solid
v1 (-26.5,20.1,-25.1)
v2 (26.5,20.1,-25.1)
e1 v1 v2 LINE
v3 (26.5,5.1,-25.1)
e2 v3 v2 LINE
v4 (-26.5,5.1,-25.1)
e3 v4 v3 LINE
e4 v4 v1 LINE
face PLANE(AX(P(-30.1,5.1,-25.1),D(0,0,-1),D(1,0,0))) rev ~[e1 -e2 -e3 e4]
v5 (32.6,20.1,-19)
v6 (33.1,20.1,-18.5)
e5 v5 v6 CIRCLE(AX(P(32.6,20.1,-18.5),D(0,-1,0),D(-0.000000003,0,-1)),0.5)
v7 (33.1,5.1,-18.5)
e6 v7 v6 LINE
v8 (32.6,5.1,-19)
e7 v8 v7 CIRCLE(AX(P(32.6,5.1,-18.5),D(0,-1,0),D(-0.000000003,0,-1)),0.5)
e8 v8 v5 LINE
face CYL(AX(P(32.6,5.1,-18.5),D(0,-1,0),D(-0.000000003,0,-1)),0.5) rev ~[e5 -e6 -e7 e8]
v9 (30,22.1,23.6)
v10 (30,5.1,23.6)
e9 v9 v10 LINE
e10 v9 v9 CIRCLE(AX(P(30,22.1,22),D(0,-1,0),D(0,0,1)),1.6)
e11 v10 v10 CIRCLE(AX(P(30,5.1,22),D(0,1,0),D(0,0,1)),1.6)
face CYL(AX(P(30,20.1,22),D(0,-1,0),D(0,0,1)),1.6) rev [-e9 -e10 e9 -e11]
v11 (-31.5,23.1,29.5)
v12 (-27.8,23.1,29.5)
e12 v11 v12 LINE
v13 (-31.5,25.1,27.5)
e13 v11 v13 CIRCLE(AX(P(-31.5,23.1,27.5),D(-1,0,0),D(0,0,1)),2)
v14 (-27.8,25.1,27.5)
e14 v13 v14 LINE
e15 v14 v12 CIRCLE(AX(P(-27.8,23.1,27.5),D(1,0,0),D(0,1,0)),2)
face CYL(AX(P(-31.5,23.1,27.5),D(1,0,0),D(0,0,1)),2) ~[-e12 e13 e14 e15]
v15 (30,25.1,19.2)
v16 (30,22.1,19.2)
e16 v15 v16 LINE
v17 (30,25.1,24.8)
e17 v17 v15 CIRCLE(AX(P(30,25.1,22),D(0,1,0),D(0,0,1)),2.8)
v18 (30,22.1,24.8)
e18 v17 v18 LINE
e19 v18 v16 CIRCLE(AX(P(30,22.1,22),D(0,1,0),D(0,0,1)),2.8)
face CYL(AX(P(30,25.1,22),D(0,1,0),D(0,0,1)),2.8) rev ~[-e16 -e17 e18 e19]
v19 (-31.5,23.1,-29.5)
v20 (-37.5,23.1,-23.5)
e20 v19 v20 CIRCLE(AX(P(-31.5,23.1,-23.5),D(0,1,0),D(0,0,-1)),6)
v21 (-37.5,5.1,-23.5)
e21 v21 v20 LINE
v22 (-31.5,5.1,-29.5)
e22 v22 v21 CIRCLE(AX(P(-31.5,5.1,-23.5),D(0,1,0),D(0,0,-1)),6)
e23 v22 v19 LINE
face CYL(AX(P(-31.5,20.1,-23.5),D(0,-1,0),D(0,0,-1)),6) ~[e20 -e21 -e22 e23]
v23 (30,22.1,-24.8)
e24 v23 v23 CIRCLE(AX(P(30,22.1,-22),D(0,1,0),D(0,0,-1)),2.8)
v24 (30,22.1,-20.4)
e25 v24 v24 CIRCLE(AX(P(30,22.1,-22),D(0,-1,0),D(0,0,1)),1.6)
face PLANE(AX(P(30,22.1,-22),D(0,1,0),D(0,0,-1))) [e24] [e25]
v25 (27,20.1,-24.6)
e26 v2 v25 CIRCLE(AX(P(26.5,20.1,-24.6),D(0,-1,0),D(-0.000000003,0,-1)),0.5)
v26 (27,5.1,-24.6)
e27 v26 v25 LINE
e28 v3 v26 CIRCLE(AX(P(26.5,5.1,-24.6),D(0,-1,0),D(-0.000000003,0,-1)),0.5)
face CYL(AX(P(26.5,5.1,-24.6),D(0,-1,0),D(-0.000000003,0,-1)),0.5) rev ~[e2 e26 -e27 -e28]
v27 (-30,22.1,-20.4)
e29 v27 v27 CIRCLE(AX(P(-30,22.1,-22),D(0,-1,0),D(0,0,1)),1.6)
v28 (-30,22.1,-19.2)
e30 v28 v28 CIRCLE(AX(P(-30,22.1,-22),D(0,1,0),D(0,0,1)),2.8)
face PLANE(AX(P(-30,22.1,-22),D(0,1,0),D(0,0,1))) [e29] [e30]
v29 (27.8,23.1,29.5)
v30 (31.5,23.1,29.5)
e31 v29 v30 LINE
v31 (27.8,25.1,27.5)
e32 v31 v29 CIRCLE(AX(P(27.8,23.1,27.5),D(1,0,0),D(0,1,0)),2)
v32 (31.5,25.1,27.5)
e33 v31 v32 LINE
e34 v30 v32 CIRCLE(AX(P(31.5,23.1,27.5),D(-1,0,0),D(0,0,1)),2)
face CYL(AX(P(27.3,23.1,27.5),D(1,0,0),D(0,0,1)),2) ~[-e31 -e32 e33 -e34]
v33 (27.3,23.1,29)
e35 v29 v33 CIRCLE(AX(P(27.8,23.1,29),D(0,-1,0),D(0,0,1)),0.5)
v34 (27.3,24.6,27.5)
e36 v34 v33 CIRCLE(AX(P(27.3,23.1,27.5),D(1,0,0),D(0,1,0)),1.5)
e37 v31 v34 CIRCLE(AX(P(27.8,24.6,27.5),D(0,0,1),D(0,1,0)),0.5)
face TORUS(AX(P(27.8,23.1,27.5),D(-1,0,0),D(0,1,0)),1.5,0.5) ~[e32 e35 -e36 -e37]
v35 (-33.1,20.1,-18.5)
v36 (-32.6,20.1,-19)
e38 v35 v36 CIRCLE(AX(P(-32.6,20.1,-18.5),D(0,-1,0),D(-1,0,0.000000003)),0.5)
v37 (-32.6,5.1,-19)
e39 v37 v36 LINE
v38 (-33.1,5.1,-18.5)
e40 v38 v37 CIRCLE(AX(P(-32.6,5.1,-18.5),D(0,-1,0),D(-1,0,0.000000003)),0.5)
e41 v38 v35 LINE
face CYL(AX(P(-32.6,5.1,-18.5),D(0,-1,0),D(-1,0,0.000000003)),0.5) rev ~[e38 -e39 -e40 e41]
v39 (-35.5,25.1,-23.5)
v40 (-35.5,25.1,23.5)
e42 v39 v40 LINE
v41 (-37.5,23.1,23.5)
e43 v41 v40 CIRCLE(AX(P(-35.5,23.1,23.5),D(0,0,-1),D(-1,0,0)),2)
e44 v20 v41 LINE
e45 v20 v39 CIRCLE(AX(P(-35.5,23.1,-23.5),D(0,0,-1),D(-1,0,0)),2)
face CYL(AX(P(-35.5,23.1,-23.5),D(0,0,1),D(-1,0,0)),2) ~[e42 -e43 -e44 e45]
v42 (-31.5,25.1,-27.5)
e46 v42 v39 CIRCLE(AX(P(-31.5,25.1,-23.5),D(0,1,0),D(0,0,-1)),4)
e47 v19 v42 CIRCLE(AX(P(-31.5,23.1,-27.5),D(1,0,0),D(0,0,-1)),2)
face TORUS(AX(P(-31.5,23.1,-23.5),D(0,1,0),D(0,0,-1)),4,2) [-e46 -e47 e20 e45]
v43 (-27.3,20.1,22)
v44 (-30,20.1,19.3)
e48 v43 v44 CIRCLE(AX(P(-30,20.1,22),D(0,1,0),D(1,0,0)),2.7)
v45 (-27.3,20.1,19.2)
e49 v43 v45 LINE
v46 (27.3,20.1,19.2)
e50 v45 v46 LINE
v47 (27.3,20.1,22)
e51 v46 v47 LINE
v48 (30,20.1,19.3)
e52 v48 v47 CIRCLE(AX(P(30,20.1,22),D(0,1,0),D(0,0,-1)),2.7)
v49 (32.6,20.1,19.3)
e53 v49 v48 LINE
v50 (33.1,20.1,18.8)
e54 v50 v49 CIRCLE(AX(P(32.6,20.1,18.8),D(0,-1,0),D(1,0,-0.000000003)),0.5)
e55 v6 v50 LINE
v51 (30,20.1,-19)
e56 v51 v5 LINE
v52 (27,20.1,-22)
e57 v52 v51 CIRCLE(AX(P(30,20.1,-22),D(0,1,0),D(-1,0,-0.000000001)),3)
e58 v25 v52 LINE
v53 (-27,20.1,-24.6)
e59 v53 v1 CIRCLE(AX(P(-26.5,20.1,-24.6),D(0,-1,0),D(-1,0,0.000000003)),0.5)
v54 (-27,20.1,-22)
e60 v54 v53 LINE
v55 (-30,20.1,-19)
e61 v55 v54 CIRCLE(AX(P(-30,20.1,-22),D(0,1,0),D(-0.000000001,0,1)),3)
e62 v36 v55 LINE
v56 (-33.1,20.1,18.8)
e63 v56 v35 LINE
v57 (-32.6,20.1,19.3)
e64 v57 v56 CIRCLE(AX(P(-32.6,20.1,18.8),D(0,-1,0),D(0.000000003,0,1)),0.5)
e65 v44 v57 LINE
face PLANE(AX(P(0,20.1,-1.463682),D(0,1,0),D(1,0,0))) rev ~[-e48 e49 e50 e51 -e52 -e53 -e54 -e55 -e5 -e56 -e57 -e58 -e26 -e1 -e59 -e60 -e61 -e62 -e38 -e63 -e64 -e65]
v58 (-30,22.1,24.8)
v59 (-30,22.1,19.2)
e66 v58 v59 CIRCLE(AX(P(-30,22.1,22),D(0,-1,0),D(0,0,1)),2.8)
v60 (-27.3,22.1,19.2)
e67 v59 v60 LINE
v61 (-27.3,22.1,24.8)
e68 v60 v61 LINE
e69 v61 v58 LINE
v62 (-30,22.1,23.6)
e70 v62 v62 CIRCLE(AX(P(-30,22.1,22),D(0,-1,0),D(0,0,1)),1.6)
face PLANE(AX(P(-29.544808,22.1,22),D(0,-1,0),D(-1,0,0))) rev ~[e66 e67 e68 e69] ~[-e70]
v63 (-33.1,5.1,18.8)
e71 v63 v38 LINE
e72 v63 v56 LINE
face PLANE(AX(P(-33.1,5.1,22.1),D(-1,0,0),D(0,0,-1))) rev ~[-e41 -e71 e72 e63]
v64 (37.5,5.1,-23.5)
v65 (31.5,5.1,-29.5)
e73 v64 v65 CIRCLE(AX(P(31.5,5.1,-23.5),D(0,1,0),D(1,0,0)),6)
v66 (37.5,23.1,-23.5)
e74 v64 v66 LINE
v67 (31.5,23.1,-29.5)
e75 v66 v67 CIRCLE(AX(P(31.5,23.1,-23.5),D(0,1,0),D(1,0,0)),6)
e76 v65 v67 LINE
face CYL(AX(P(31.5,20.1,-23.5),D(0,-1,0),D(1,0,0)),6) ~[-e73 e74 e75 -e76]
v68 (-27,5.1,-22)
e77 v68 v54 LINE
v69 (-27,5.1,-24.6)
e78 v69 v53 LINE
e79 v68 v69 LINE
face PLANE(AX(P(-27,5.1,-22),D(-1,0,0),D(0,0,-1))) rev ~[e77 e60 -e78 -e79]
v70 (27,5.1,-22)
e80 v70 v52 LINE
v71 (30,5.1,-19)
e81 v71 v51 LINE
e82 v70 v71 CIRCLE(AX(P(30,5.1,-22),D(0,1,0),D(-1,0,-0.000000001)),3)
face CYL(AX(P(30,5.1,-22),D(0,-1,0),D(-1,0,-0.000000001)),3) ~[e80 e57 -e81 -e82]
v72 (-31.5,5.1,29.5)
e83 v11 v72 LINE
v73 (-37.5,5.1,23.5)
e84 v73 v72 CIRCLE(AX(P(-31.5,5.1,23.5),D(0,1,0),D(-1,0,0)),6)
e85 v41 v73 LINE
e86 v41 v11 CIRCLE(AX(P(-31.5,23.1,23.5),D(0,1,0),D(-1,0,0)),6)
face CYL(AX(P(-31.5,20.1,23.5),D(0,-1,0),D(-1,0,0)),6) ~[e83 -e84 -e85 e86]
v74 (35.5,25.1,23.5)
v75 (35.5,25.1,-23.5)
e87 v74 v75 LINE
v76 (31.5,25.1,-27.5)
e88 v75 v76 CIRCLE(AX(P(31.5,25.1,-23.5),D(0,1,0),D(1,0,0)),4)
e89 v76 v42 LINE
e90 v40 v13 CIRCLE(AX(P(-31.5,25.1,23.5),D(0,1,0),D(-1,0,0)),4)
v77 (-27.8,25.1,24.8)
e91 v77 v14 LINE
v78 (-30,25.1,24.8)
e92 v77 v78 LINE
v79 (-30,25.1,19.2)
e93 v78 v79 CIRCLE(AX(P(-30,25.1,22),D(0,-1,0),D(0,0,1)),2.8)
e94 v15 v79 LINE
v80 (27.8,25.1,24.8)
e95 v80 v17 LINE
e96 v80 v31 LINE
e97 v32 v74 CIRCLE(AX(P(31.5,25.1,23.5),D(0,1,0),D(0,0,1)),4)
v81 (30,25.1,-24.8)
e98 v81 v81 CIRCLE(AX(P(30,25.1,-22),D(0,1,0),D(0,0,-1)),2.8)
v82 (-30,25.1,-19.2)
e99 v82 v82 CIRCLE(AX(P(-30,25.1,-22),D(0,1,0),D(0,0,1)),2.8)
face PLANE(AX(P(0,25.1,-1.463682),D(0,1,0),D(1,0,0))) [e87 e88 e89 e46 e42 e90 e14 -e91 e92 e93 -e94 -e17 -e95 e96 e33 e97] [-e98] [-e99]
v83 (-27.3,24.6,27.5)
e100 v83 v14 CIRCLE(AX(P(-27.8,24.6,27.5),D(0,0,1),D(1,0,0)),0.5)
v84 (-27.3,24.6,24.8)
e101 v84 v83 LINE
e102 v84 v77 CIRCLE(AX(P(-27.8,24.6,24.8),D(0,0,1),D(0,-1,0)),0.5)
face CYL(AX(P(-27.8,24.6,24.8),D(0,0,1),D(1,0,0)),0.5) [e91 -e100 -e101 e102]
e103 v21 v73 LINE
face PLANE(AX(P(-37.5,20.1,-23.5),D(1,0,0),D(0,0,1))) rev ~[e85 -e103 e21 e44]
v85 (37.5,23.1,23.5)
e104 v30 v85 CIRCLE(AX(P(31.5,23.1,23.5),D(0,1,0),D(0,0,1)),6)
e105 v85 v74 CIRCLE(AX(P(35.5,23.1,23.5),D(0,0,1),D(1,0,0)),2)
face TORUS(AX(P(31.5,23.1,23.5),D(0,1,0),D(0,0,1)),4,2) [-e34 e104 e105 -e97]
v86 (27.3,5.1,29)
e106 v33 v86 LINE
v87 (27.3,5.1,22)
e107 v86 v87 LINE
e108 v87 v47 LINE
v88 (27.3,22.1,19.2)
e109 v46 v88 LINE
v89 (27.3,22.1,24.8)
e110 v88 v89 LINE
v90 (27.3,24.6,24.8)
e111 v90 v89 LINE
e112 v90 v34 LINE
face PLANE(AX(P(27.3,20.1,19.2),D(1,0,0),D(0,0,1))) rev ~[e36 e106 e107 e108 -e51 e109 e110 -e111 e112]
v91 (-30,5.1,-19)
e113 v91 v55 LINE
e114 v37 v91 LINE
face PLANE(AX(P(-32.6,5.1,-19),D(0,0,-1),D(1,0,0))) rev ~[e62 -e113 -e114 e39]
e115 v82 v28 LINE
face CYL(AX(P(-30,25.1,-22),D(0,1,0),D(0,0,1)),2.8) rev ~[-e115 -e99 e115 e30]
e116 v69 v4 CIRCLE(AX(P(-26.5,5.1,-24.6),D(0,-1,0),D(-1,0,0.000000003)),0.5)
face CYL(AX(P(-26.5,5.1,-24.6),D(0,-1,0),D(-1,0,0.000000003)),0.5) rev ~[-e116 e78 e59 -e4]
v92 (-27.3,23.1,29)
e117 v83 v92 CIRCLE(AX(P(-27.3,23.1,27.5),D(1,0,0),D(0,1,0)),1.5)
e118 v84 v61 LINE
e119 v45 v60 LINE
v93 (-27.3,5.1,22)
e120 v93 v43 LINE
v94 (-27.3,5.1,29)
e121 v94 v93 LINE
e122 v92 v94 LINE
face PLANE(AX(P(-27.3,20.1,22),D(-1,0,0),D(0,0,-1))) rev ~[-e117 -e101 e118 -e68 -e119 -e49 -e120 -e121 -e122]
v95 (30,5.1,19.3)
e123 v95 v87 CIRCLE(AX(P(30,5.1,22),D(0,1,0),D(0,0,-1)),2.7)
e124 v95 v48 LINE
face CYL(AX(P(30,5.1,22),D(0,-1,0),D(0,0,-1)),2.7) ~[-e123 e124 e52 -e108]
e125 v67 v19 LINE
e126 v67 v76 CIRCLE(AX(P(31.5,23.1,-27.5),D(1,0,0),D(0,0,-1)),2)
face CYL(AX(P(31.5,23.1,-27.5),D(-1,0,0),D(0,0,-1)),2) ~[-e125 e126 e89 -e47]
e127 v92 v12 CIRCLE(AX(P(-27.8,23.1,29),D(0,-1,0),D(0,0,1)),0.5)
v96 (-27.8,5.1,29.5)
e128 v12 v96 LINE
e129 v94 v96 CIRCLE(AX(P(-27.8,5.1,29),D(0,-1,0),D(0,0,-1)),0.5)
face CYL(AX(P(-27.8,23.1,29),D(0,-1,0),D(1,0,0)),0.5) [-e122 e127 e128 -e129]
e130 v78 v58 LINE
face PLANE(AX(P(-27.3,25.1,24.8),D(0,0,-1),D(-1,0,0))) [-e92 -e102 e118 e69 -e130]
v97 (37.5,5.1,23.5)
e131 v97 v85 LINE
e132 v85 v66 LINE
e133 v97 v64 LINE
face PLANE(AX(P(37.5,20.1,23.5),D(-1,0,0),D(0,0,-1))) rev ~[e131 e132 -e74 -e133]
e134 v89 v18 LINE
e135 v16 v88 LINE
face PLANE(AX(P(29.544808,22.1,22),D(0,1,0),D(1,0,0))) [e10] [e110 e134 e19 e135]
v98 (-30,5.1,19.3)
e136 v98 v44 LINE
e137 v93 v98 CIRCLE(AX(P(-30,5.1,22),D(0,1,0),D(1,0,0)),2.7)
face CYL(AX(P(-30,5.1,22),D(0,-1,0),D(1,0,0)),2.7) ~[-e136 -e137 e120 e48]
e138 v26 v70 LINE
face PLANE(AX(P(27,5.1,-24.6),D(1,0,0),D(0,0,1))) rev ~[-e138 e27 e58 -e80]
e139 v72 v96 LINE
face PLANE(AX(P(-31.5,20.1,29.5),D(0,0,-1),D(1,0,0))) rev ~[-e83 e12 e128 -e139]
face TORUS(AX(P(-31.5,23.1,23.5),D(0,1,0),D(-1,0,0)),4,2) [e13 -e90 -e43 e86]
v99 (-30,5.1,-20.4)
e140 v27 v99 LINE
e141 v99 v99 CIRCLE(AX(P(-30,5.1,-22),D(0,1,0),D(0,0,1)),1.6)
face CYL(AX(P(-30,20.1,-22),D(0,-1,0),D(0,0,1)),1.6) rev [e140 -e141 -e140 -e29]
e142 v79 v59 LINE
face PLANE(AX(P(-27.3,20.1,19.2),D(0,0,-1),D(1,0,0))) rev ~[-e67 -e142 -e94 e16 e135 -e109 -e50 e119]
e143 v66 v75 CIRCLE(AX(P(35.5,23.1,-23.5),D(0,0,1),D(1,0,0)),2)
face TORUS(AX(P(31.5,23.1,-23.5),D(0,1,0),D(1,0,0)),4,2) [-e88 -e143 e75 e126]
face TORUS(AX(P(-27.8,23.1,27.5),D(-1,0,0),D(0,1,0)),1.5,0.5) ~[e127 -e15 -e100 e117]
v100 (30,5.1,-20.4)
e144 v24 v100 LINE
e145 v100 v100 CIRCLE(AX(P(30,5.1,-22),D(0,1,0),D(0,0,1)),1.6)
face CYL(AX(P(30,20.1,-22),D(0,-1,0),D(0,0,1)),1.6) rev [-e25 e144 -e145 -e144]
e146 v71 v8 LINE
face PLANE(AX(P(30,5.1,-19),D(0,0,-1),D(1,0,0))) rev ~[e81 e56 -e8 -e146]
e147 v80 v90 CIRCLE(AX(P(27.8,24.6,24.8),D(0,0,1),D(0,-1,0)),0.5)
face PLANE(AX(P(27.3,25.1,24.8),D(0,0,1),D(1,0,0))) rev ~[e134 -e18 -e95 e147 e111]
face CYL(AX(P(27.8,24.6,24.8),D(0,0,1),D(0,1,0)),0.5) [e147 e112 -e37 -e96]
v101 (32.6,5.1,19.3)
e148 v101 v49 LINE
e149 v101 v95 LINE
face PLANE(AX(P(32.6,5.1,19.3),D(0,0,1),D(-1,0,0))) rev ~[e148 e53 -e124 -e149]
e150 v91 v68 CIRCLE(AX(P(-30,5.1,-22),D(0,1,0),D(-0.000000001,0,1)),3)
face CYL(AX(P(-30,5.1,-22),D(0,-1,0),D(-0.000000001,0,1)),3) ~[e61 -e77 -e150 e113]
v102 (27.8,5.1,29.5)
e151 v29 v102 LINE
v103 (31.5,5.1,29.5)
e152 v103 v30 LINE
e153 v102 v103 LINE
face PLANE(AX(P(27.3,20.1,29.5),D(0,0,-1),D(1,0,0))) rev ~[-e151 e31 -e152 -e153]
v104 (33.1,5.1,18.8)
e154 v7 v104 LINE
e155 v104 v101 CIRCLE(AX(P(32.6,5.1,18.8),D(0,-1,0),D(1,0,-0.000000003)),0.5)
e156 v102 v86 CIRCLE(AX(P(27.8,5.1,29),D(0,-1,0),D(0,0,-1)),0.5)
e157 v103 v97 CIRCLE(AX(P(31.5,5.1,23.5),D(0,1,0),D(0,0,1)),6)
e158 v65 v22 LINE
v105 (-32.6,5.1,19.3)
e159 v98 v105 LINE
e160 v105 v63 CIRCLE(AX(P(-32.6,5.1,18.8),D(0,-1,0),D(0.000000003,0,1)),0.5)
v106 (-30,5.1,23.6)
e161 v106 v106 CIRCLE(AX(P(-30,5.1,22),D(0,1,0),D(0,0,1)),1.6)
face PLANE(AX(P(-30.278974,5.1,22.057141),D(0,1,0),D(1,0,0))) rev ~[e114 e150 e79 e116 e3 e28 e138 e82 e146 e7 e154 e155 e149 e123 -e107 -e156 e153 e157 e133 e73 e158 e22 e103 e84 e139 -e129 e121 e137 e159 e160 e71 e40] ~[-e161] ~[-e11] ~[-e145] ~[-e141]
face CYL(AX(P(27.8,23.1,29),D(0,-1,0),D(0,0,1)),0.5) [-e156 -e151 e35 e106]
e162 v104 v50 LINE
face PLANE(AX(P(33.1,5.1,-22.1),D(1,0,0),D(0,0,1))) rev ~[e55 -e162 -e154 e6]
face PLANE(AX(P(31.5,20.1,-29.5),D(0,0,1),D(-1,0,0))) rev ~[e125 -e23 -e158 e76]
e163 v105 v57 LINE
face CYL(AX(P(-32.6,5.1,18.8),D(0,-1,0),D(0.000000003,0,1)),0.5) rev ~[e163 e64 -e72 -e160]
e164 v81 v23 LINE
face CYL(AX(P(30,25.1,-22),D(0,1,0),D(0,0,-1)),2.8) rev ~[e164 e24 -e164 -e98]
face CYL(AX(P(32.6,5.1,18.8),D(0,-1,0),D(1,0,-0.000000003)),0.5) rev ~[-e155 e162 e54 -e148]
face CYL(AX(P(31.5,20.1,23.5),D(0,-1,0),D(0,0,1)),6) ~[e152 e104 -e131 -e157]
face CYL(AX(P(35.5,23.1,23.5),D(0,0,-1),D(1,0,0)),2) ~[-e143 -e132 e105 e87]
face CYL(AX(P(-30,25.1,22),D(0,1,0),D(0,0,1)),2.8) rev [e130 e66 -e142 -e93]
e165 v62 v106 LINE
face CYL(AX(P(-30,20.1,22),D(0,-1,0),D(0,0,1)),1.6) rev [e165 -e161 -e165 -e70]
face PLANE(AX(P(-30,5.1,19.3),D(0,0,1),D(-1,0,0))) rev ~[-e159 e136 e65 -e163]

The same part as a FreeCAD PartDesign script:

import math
import FreeCAD as App
import Part
import Sketcher
from FreeCAD import Vector


def edges_at(feature, points):
    """Names of the edges that pass closest to the given points."""
    edges = feature.Shape.Edges
    near = lambda p: min(range(len(edges)), key=lambda i: edges[i].distToShape(Part.Vertex(*p))[0])
    return sorted({f"Edge{near(p) + 1}" for p in points})

doc = App.newDocument("Part")
body = doc.addObject("PartDesign::Body", "Body")

# Sketch on XZ plane
sketch1 = body.newObject("Sketcher::SketchObject", "Sketch")
sketch1.AttachmentSupport = (doc.getObject("XZ_Plane"), [""])
sketch1.MapMode = "FlatFace"
sketch1.AttachmentOffset = App.Placement(Vector(0, 0, -5.1), App.Rotation())
sketch1.addGeometry(Part.LineSegment(Vector(-27.3, 29.5, 0), Vector(-27.3, 22, 0)), False)
sketch1.addGeometry(Part.ArcOfCircle(Part.Circle(Vector(-30, 22, 0), Vector(0, 0, 1), 2.7), math.radians(-90), math.radians(0)), False)
sketch1.addGeometry(Part.LineSegment(Vector(-30, 19.3, 0), Vector(-32.6, 19.3, 0)), False)
sketch1.addGeometry(Part.ArcOfCircle(Part.Circle(Vector(-32.6, 18.8, 0), Vector(0, 0, 1), 0.5), math.radians(90), math.radians(180)), False)
sketch1.addGeometry(Part.LineSegment(Vector(-33.1, 18.8, 0), Vector(-33.1, -18.5, 0)), False)
sketch1.addGeometry(Part.ArcOfCircle(Part.Circle(Vector(-32.6, -18.5, 0), Vector(0, 0, 1), 0.5), math.radians(180), math.radians(270)), False)
sketch1.addGeometry(Part.LineSegment(Vector(-32.6, -19, 0), Vector(-30, -19, 0)), False)
sketch1.addGeometry(Part.ArcOfCircle(Part.Circle(Vector(-30, -22, 0), Vector(0, 0, 1), 3), math.radians(0), math.radians(90)), False)
sketch1.addGeometry(Part.LineSegment(Vector(-27, -22, 0), Vector(-27, -24.6, 0)), False)
sketch1.addGeometry(Part.ArcOfCircle(Part.Circle(Vector(-26.5, -24.6, 0), Vector(0, 0, 1), 0.5), math.radians(180), math.radians(270)), False)
sketch1.addGeometry(Part.LineSegment(Vector(-26.5, -25.1, 0), Vector(26.5, -25.1, 0)), False)
sketch1.addGeometry(Part.ArcOfCircle(Part.Circle(Vector(26.5, -24.6, 0), Vector(0, 0, 1), 0.5), math.radians(-90), math.radians(0)), False)
sketch1.addGeometry(Part.LineSegment(Vector(27, -24.6, 0), Vector(27, -22, 0)), False)
sketch1.addGeometry(Part.ArcOfCircle(Part.Circle(Vector(30, -22, 0), Vector(0, 0, 1), 3), math.radians(90), math.radians(180)), False)
sketch1.addGeometry(Part.LineSegment(Vector(30, -19, 0), Vector(32.6, -19, 0)), False)
sketch1.addGeometry(Part.ArcOfCircle(Part.Circle(Vector(32.6, -18.5, 0), Vector(0, 0, 1), 0.5), math.radians(-90), math.radians(0)), False)
sketch1.addGeometry(Part.LineSegment(Vector(33.1, -18.5, 0), Vector(33.1, 18.8, 0)), False)
sketch1.addGeometry(Part.ArcOfCircle(Part.Circle(Vector(32.6, 18.8, 0), Vector(0, 0, 1), 0.5), math.radians(0), math.radians(90)), False)
sketch1.addGeometry(Part.LineSegment(Vector(32.6, 19.3, 0), Vector(30, 19.3, 0)), False)
sketch1.addGeometry(Part.ArcOfCircle(Part.Circle(Vector(30, 22, 0), Vector(0, 0, 1), 2.7), math.radians(-180), math.radians(-90)), False)
sketch1.addGeometry(Part.LineSegment(Vector(27.3, 22, 0), Vector(27.3, 29.5, 0)), False)
sketch1.addGeometry(Part.LineSegment(Vector(27.3, 29.5, 0), Vector(31.5, 29.5, 0)), False)
sketch1.addGeometry(Part.ArcOfCircle(Part.Circle(Vector(31.5, 23.5, 0), Vector(0, 0, 1), 6), math.radians(0), math.radians(90)), False)
sketch1.addGeometry(Part.LineSegment(Vector(37.5, 23.5, 0), Vector(37.5, -23.5, 0)), False)
sketch1.addGeometry(Part.ArcOfCircle(Part.Circle(Vector(31.5, -23.5, 0), Vector(0, 0, 1), 6), math.radians(-90), math.radians(0)), False)
sketch1.addGeometry(Part.LineSegment(Vector(31.5, -29.5, 0), Vector(-31.5, -29.5, 0)), False)
sketch1.addGeometry(Part.ArcOfCircle(Part.Circle(Vector(-31.5, -23.5, 0), Vector(0, 0, 1), 6), math.radians(180), math.radians(270)), False)
sketch1.addGeometry(Part.LineSegment(Vector(-37.5, -23.5, 0), Vector(-37.5, 23.5, 0)), False)
sketch1.addGeometry(Part.ArcOfCircle(Part.Circle(Vector(-31.5, 23.5, 0), Vector(0, 0, 1), 6), math.radians(90), math.radians(180)), False)
sketch1.addGeometry(Part.LineSegment(Vector(-31.5, 29.5, 0), Vector(-27.3, 29.5, 0)), False)
sketch1.addGeometry(Part.Circle(Vector(-30, 22, 0), Vector(0, 0, 1), 1.6), False)
sketch1.addGeometry(Part.Circle(Vector(-30, -22, 0), Vector(0, 0, 1), 1.6), False)
sketch1.addGeometry(Part.Circle(Vector(30, -22, 0), Vector(0, 0, 1), 1.6), False)
sketch1.addGeometry(Part.Circle(Vector(30, 22, 0), Vector(0, 0, 1), 1.6), False)
sketch1.addConstraint(Sketcher.Constraint("Tangent", 0, 2, 1, 2))
sketch1.addConstraint(Sketcher.Constraint("Tangent", 1, 1, 2, 1))
sketch1.addConstraint(Sketcher.Constraint("Tangent", 2, 2, 3, 1))
sketch1.addConstraint(Sketcher.Constraint("Tangent", 3, 2, 4, 1))
sketch1.addConstraint(Sketcher.Constraint("Tangent", 4, 2, 5, 1))
sketch1.addConstraint(Sketcher.Constraint("Tangent", 5, 2, 6, 1))
sketch1.addConstraint(Sketcher.Constraint("Tangent", 6, 2, 7, 2))
sketch1.addConstraint(Sketcher.Constraint("Tangent", 7, 1, 8, 1))
sketch1.addConstraint(Sketcher.Constraint("Tangent", 8, 2, 9, 1))
sketch1.addConstraint(Sketcher.Constraint("Tangent", 9, 2, 10, 1))
sketch1.addConstraint(Sketcher.Constraint("Tangent", 10, 2, 11, 1))
sketch1.addConstraint(Sketcher.Constraint("Tangent", 11, 2, 12, 1))
sketch1.addConstraint(Sketcher.Constraint("Tangent", 12, 2, 13, 2))
sketch1.addConstraint(Sketcher.Constraint("Tangent", 13, 1, 14, 1))
sketch1.addConstraint(Sketcher.Constraint("Tangent", 14, 2, 15, 1))
sketch1.addConstraint(Sketcher.Constraint("Tangent", 15, 2, 16, 1))
sketch1.addConstraint(Sketcher.Constraint("Tangent", 16, 2, 17, 1))
sketch1.addConstraint(Sketcher.Constraint("Tangent", 17, 2, 18, 1))
sketch1.addConstraint(Sketcher.Constraint("Tangent", 18, 2, 19, 2))
sketch1.addConstraint(Sketcher.Constraint("Tangent", 19, 1, 20, 1))
sketch1.addConstraint(Sketcher.Constraint("Coincident", 20, 2, 21, 1))
sketch1.addConstraint(Sketcher.Constraint("Tangent", 21, 2, 22, 2))
sketch1.addConstraint(Sketcher.Constraint("Tangent", 22, 1, 23, 1))
sketch1.addConstraint(Sketcher.Constraint("Tangent", 23, 2, 24, 2))
sketch1.addConstraint(Sketcher.Constraint("Tangent", 24, 1, 25, 1))
sketch1.addConstraint(Sketcher.Constraint("Tangent", 25, 2, 26, 2))
sketch1.addConstraint(Sketcher.Constraint("Tangent", 26, 1, 27, 1))
sketch1.addConstraint(Sketcher.Constraint("Tangent", 27, 2, 28, 2))
sketch1.addConstraint(Sketcher.Constraint("Tangent", 28, 1, 29, 1))
sketch1.addConstraint(Sketcher.Constraint("Coincident", 29, 2, 0, 1))
sketch1.addConstraint(Sketcher.Constraint("Vertical", 0))
sketch1.addConstraint(Sketcher.Constraint("Horizontal", 2))
sketch1.addConstraint(Sketcher.Constraint("Vertical", 4))
sketch1.addConstraint(Sketcher.Constraint("Horizontal", 6))
sketch1.addConstraint(Sketcher.Constraint("Vertical", 8))
sketch1.addConstraint(Sketcher.Constraint("Horizontal", 10))
sketch1.addConstraint(Sketcher.Constraint("Vertical", 12))
sketch1.addConstraint(Sketcher.Constraint("Horizontal", 14))
sketch1.addConstraint(Sketcher.Constraint("Vertical", 16))
sketch1.addConstraint(Sketcher.Constraint("Horizontal", 18))
sketch1.addConstraint(Sketcher.Constraint("Vertical", 20))
sketch1.addConstraint(Sketcher.Constraint("Horizontal", 21))
sketch1.addConstraint(Sketcher.Constraint("Vertical", 23))
sketch1.addConstraint(Sketcher.Constraint("Horizontal", 25))
sketch1.addConstraint(Sketcher.Constraint("Vertical", 27))
sketch1.addConstraint(Sketcher.Constraint("Horizontal", 29))
sketch1.addConstraint(Sketcher.Constraint("Coincident", 30, 3, 1, 3))
sketch1.addConstraint(Sketcher.Constraint("Coincident", 31, 3, 7, 3))
sketch1.addConstraint(Sketcher.Constraint("Coincident", 32, 3, 13, 3))
sketch1.addConstraint(Sketcher.Constraint("Coincident", 33, 3, 19, 3))
sketch1.addConstraint(Sketcher.Constraint("Equal", 3, 5))
sketch1.addConstraint(Sketcher.Constraint("Equal", 5, 9))
sketch1.addConstraint(Sketcher.Constraint("Equal", 9, 11))
sketch1.addConstraint(Sketcher.Constraint("Equal", 7, 13))
sketch1.addConstraint(Sketcher.Constraint("Equal", 11, 15))
sketch1.addConstraint(Sketcher.Constraint("Equal", 15, 17))
sketch1.addConstraint(Sketcher.Constraint("Equal", 1, 19))
sketch1.addConstraint(Sketcher.Constraint("Equal", 22, 24))
sketch1.addConstraint(Sketcher.Constraint("Equal", 24, 26))
sketch1.addConstraint(Sketcher.Constraint("Equal", 26, 28))
sketch1.addConstraint(Sketcher.Constraint("Equal", 30, 31))
sketch1.addConstraint(Sketcher.Constraint("Equal", 31, 32))
sketch1.addConstraint(Sketcher.Constraint("Equal", 32, 33))
sketch1.addConstraint(Sketcher.Constraint("Symmetric", 1, 3, 13, 3, -1, 1))
sketch1.addConstraint(Sketcher.Constraint("Symmetric", 7, 3, 19, 3, -1, 1))
sketch1.addConstraint(Sketcher.Constraint("Symmetric", 22, 3, 26, 3, -1, 1))
sketch1.addConstraint(Sketcher.Constraint("Symmetric", 7, 3, 13, 3, -2))
sketch1.addConstraint(Sketcher.Constraint("Horizontal", 22, 3, 28, 3))
sketch1.addConstraint(Sketcher.Constraint("Equal", 6, 14))
sketch1.addConstraint(Sketcher.Constraint("Equal", 18, 8))
sketch1.addConstraint(Sketcher.Constraint("Radius", 7, 3.0))
sketch1.addConstraint(Sketcher.Constraint("Radius", 22, 6.0))
sketch1.addConstraint(Sketcher.Constraint("Diameter", 30, 3.2))
sketch1.addConstraint(Sketcher.Constraint("Radius", 1, 2.7))
sketch1.addConstraint(Sketcher.Constraint("Radius", 3, 0.5))
sketch1.addConstraint(Sketcher.Constraint("DistanceX", 10, 1, 10, 2, 53.0))
sketch1.addConstraint(Sketcher.Constraint("DistanceX", 25, 2, 25, 1, 63.0))
sketch1.addConstraint(Sketcher.Constraint("DistanceY", 23, 2, 23, 1, 47.0))
sketch1.addConstraint(Sketcher.Constraint("DistanceX", 2, 2, 2, 1, 2.6))
sketch1.addConstraint(Sketcher.Constraint("DistanceY", 0, 2, 0, 1, 7.5))
pad1 = body.newObject("PartDesign::Pad", "Pad")
pad1.Profile = sketch1
pad1.Length = 15
pad1.Reversed = True

# Sketch on XZ plane
sketch2 = body.newObject("Sketcher::SketchObject", "Sketch001")
sketch2.AttachmentSupport = (doc.getObject("XZ_Plane"), [""])
sketch2.MapMode = "FlatFace"
sketch2.AttachmentOffset = App.Placement(Vector(0, 0, -20.1), App.Rotation())
sketch2.addGeometry(Part.LineSegment(Vector(-27.3, 19.2, 0), Vector(27.3, 19.2, 0)), False)
sketch2.addGeometry(Part.LineSegment(Vector(27.3, 19.2, 0), Vector(27.3, 29.5, 0)), False)
sketch2.addGeometry(Part.LineSegment(Vector(27.3, 29.5, 0), Vector(31.5, 29.5, 0)), False)
sketch2.addGeometry(Part.ArcOfCircle(Part.Circle(Vector(31.5, 23.5, 0), Vector(0, 0, 1), 6), math.radians(0), math.radians(90)), False)
sketch2.addGeometry(Part.LineSegment(Vector(37.5, 23.5, 0), Vector(37.5, -23.5, 0)), False)
sketch2.addGeometry(Part.ArcOfCircle(Part.Circle(Vector(31.5, -23.5, 0), Vector(0, 0, 1), 6), math.radians(-90), math.radians(0)), False)
sketch2.addGeometry(Part.LineSegment(Vector(31.5, -29.5, 0), Vector(-31.5, -29.5, 0)), False)
sketch2.addGeometry(Part.ArcOfCircle(Part.Circle(Vector(-31.5, -23.5, 0), Vector(0, 0, 1), 6), math.radians(180), math.radians(270)), False)
sketch2.addGeometry(Part.LineSegment(Vector(-37.5, -23.5, 0), Vector(-37.5, 23.5, 0)), False)
sketch2.addGeometry(Part.ArcOfCircle(Part.Circle(Vector(-31.5, 23.5, 0), Vector(0, 0, 1), 6), math.radians(90), math.radians(180)), False)
sketch2.addGeometry(Part.LineSegment(Vector(-31.5, 29.5, 0), Vector(-27.3, 29.5, 0)), False)
sketch2.addGeometry(Part.LineSegment(Vector(-27.3, 29.5, 0), Vector(-27.3, 19.2, 0)), False)
sketch2.addGeometry(Part.Circle(Vector(30, 22, 0), Vector(0, 0, 1), 1.6), False)
sketch2.addGeometry(Part.Circle(Vector(-30, 22, 0), Vector(0, 0, 1), 1.6), False)
sketch2.addGeometry(Part.Circle(Vector(-30, -22, 0), Vector(0, 0, 1), 1.6), False)
sketch2.addGeometry(Part.Circle(Vector(30, -22, 0), Vector(0, 0, 1), 1.6), False)
sketch2.addConstraint(Sketcher.Constraint("Coincident", 0, 2, 1, 1))
sketch2.addConstraint(Sketcher.Constraint("Coincident", 1, 2, 2, 1))
sketch2.addConstraint(Sketcher.Constraint("Tangent", 2, 2, 3, 2))
sketch2.addConstraint(Sketcher.Constraint("Tangent", 3, 1, 4, 1))
sketch2.addConstraint(Sketcher.Constraint("Tangent", 4, 2, 5, 2))
sketch2.addConstraint(Sketcher.Constraint("Tangent", 5, 1, 6, 1))
sketch2.addConstraint(Sketcher.Constraint("Tangent", 6, 2, 7, 2))
sketch2.addConstraint(Sketcher.Constraint("Tangent", 7, 1, 8, 1))
sketch2.addConstraint(Sketcher.Constraint("Tangent", 8, 2, 9, 2))
sketch2.addConstraint(Sketcher.Constraint("Tangent", 9, 1, 10, 1))
sketch2.addConstraint(Sketcher.Constraint("Coincident", 10, 2, 11, 1))
sketch2.addConstraint(Sketcher.Constraint("Coincident", 11, 2, 0, 1))
sketch2.addConstraint(Sketcher.Constraint("Horizontal", 0))
sketch2.addConstraint(Sketcher.Constraint("Vertical", 1))
sketch2.addConstraint(Sketcher.Constraint("Horizontal", 2))
sketch2.addConstraint(Sketcher.Constraint("Vertical", 4))
sketch2.addConstraint(Sketcher.Constraint("Horizontal", 6))
sketch2.addConstraint(Sketcher.Constraint("Vertical", 8))
sketch2.addConstraint(Sketcher.Constraint("Horizontal", 10))
sketch2.addConstraint(Sketcher.Constraint("Vertical", 11))
sketch2.addConstraint(Sketcher.Constraint("Equal", 3, 5))
sketch2.addConstraint(Sketcher.Constraint("Equal", 5, 7))
sketch2.addConstraint(Sketcher.Constraint("Equal", 7, 9))
sketch2.addConstraint(Sketcher.Constraint("Equal", 12, 13))
sketch2.addConstraint(Sketcher.Constraint("Equal", 13, 14))
sketch2.addConstraint(Sketcher.Constraint("Equal", 14, 15))
sketch2.addConstraint(Sketcher.Constraint("Symmetric", 3, 3, 7, 3, -1, 1))
sketch2.addConstraint(Sketcher.Constraint("Symmetric", 12, 3, 14, 3, -1, 1))
sketch2.addConstraint(Sketcher.Constraint("Symmetric", 13, 3, 15, 3, -1, 1))
sketch2.addConstraint(Sketcher.Constraint("Symmetric", 12, 3, 13, 3, -2))
sketch2.addConstraint(Sketcher.Constraint("Symmetric", 1, 2, 10, 2, -2))
sketch2.addConstraint(Sketcher.Constraint("Radius", 3, 6.0))
sketch2.addConstraint(Sketcher.Constraint("Diameter", 12, 3.2))
sketch2.addConstraint(Sketcher.Constraint("DistanceX", 6, 2, 6, 1, 63.0))
sketch2.addConstraint(Sketcher.Constraint("DistanceY", 4, 2, 4, 1, 47.0))
sketch2.addConstraint(Sketcher.Constraint("DistanceX", 0, 1, 0, 2, 54.6))
sketch2.addConstraint(Sketcher.Constraint("DistanceY", 1, 1, 1, 2, 10.3))
sketch2.addConstraint(Sketcher.Constraint("DistanceX", -1, 1, 12, 3, 30.0))
sketch2.addConstraint(Sketcher.Constraint("DistanceY", -1, 1, 12, 3, 22.0))
pad2 = body.newObject("PartDesign::Pad", "Pad001")
pad2.Profile = sketch2
pad2.Length = 5
pad2.Reversed = True

# Sketch on XZ plane
sketch3 = body.newObject("Sketcher::SketchObject", "Sketch002")
sketch3.AttachmentSupport = (doc.getObject("XZ_Plane"), [""])
sketch3.MapMode = "FlatFace"
sketch3.AttachmentOffset = App.Placement(Vector(0, 0, -25.1), App.Rotation())
sketch3.addGeometry(Part.Circle(Vector(-30, -22, 0), Vector(0, 0, 1), 2.8), False)
sketch3.addGeometry(Part.Circle(Vector(30, -22, 0), Vector(0, 0, 1), 2.8), False)
sketch3.addGeometry(Part.LineSegment(Vector(-27.3, 19.2, 0), Vector(-30, 19.2, 0)), False)
sketch3.addGeometry(Part.ArcOfCircle(Part.Circle(Vector(-30, 22, 0), Vector(0, 0, 1), 2.8), math.radians(90), math.radians(270)), False)
sketch3.addGeometry(Part.LineSegment(Vector(-30, 24.8, 0), Vector(-27.3, 24.8, 0)), False)
sketch3.addGeometry(Part.LineSegment(Vector(-27.3, 24.8, 0), Vector(-27.3, 19.2, 0)), False)
sketch3.addGeometry(Part.LineSegment(Vector(27.3, 19.2, 0), Vector(27.3, 24.8, 0)), False)
sketch3.addGeometry(Part.LineSegment(Vector(27.3, 24.8, 0), Vector(30, 24.8, 0)), False)
sketch3.addGeometry(Part.ArcOfCircle(Part.Circle(Vector(30, 22, 0), Vector(0, 0, 1), 2.8), math.radians(-90), math.radians(90)), False)
sketch3.addGeometry(Part.LineSegment(Vector(30, 19.2, 0), Vector(27.3, 19.2, 0)), False)
sketch3.addConstraint(Sketcher.Constraint("Tangent", 2, 2, 3, 2))
sketch3.addConstraint(Sketcher.Constraint("Tangent", 3, 1, 4, 1))
sketch3.addConstraint(Sketcher.Constraint("Coincident", 4, 2, 5, 1))
sketch3.addConstraint(Sketcher.Constraint("Coincident", 5, 2, 2, 1))
sketch3.addConstraint(Sketcher.Constraint("Coincident", 6, 2, 7, 1))
sketch3.addConstraint(Sketcher.Constraint("Tangent", 7, 2, 8, 2))
sketch3.addConstraint(Sketcher.Constraint("Tangent", 8, 1, 9, 1))
sketch3.addConstraint(Sketcher.Constraint("Coincident", 9, 2, 6, 1))
sketch3.addConstraint(Sketcher.Constraint("Horizontal", 2))
sketch3.addConstraint(Sketcher.Constraint("Horizontal", 4))
sketch3.addConstraint(Sketcher.Constraint("Vertical", 5))
sketch3.addConstraint(Sketcher.Constraint("Vertical", 6))
sketch3.addConstraint(Sketcher.Constraint("Horizontal", 7))
sketch3.addConstraint(Sketcher.Constraint("Horizontal", 9))
sketch3.addConstraint(Sketcher.Constraint("Equal", 0, 1))
sketch3.addConstraint(Sketcher.Constraint("Equal", 1, 3))
sketch3.addConstraint(Sketcher.Constraint("Equal", 3, 8))
sketch3.addConstraint(Sketcher.Constraint("Symmetric", 1, 3, 3, 3, -1, 1))
sketch3.addConstraint(Sketcher.Constraint("Symmetric", 0, 3, 8, 3, -1, 1))
sketch3.addConstraint(Sketcher.Constraint("Symmetric", 0, 3, 1, 3, -2))
sketch3.addConstraint(Sketcher.Constraint("Equal", 4, 7))
sketch3.addConstraint(Sketcher.Constraint("Diameter", 0, 5.6))
sketch3.addConstraint(Sketcher.Constraint("DistanceX", 2, 2, 2, 1, 2.7))
sketch3.addConstraint(Sketcher.Constraint("DistanceX", 0, 3, -1, 1, 30.0))
sketch3.addConstraint(Sketcher.Constraint("DistanceY", 0, 3, -1, 1, 22.0))
pocket1 = body.newObject("PartDesign::Pocket", "Pocket")
pocket1.Profile = sketch3
pocket1.Length = 3
pocket1.Reversed = True
doc.recompute()

fillet = body.newObject("PartDesign::Fillet", "Fillet")
fillet.Base = (pocket1, edges_at(pocket1, [
    (29.4, 25.1, 29.5),
    (35.743, 25.1, 27.743),
    (37.5, 25.1, 0),
    (35.743, 25.1, -27.743),
    (0, 25.1, -29.5),
    (-35.743, 25.1, -27.743),
    (-37.5, 25.1, 0),
    (-35.743, 25.1, 27.743),
    (-29.4, 25.1, 29.5),
]))
fillet.Radius = 2
doc.recompute()

fillet2 = body.newObject("PartDesign::Fillet", "Fillet001")
fillet2.Base = (fillet, edges_at(fillet, [
    (27.3, 25.1, 26.15),
    (-27.3, 25.1, 26.15),
    (27.3, 14.1, 29.5),
    (27.3, 24.514, 28.914),
    (-27.3, 14.1, 29.5),
    (-27.3, 24.514, 28.914),
]))
fillet2.Radius = 0.5

doc.recompute()
